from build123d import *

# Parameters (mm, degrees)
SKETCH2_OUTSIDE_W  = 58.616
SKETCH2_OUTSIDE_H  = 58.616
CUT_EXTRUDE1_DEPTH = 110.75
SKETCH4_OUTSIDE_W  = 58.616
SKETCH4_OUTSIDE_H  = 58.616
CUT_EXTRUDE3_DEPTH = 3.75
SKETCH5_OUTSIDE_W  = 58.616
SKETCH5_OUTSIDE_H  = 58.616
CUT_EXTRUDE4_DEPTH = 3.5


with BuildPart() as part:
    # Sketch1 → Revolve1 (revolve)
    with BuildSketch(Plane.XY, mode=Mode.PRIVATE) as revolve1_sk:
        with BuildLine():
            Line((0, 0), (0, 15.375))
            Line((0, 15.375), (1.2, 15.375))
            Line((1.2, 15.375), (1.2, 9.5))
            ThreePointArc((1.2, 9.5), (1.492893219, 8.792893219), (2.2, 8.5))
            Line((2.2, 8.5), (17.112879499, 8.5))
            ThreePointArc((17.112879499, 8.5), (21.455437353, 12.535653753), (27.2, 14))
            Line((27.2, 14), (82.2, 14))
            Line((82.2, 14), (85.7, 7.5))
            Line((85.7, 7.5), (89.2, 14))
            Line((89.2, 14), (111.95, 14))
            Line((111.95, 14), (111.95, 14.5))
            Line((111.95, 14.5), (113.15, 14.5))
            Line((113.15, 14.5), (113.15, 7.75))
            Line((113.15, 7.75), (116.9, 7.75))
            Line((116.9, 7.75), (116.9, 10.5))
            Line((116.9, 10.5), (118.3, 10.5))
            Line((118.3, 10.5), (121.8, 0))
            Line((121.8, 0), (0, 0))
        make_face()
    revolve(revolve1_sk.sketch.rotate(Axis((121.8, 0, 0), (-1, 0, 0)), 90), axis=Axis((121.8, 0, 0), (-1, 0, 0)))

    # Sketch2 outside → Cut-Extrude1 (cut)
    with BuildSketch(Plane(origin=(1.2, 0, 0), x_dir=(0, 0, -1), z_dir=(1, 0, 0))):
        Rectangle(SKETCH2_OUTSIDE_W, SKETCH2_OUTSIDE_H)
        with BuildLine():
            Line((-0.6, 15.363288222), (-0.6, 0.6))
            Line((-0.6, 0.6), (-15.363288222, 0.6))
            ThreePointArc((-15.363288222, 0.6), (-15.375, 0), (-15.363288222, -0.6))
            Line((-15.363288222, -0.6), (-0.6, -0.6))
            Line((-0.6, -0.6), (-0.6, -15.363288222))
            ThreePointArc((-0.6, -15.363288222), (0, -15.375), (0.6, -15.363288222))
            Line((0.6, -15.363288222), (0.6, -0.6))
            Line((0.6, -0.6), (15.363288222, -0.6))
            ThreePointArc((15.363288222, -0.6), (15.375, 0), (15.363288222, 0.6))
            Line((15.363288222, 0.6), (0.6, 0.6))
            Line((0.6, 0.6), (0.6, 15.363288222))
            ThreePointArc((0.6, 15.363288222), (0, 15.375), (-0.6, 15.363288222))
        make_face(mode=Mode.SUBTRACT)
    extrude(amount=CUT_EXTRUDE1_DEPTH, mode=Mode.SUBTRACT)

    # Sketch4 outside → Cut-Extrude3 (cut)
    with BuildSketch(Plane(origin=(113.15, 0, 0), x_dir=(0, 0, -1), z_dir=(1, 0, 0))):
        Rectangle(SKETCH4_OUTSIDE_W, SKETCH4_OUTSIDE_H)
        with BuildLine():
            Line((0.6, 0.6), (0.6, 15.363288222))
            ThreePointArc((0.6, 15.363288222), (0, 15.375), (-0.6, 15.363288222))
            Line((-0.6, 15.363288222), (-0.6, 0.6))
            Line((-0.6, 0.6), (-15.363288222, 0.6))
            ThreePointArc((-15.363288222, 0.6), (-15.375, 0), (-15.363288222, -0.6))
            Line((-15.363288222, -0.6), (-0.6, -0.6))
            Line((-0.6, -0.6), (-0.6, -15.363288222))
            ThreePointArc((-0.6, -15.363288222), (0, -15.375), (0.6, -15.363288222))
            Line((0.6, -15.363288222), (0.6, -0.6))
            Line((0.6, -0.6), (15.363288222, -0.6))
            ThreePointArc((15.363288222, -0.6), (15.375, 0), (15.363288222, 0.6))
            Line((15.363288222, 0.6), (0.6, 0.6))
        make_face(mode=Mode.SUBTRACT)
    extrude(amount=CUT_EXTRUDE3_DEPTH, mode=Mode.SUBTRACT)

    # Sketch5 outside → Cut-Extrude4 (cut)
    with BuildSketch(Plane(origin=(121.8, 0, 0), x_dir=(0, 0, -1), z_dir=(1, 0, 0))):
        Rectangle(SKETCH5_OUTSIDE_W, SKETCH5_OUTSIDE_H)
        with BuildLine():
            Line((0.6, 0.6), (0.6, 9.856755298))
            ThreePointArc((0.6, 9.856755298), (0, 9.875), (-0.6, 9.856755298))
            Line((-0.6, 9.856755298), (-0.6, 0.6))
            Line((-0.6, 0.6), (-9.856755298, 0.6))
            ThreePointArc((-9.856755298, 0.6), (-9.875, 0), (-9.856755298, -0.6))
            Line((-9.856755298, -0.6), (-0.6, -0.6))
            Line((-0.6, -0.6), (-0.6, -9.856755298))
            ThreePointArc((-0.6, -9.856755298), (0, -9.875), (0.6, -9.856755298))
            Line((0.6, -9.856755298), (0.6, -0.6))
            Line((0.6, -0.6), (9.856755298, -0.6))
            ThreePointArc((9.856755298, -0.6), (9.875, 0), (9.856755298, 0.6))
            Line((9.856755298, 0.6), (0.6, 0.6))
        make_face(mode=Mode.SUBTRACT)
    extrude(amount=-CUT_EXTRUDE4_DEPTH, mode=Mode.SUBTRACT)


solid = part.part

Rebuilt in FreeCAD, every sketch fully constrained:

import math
import FreeCAD as App
import Part
import Sketcher

doc = App.newDocument("Part")
params = doc.addObject("Spreadsheet::Sheet", "Params")
for row, (alias, value) in enumerate([
    ("sketch1_radius", "12 mm"),
    ("sketch1_radius2", "1 mm"),
    ("sketch1_width", "55 mm"),
    ("sketch1_width2", "121.8 mm"),
    ("sketch1_width3", "1.4 mm"),
    ("revolution_angle", "360 deg"),
    ("pocket1_length", "110.75 mm"),
    ("pocket2_length", "3.75 mm"),
    ("pocket3_length", "3.5 mm"),
], start=1):
    params.set(f"A{row}", alias)
    params.set(f"B{row}", "=" + value)
    params.setAlias(f"B{row}", alias)

body = doc.addObject("PartDesign::Body", "Body")

# Sketch on XY plane
sketch1 = body.newObject("Sketcher::SketchObject", "Sketch")
sketch1.AttachmentSupport = (doc.getObject("XY_Plane"), [""])
sketch1.MapMode = "FlatFace"
sketch1.addGeometry([
    Part.LineSegment(App.Vector(0, 15.4, 0), App.Vector(0, 0, 0)),  # 0
    Part.LineSegment(App.Vector(0, 0, 0), App.Vector(121.8, 0, 0)),  # 1
    Part.LineSegment(App.Vector(121.8, 0, 0), App.Vector(118.3, 10.5, 0)),  # 2
    Part.LineSegment(App.Vector(118.3, 10.5, 0), App.Vector(116.9, 10.5, 0)),  # 3
    Part.LineSegment(App.Vector(116.9, 10.5, 0), App.Vector(116.9, 7.8, 0)),  # 4
    Part.LineSegment(App.Vector(116.9, 7.8, 0), App.Vector(113.2, 7.8, 0)),  # 5
    Part.LineSegment(App.Vector(113.2, 7.8, 0), App.Vector(113.2, 14.5, 0)),  # 6
    Part.LineSegment(App.Vector(113.2, 14.5, 0), App.Vector(112, 14.5, 0)),  # 7
    Part.LineSegment(App.Vector(112, 14.5, 0), App.Vector(112, 14, 0)),  # 8
    Part.LineSegment(App.Vector(112, 14, 0), App.Vector(89.2, 14, 0)),  # 9
    Part.LineSegment(App.Vector(89.2, 14, 0), App.Vector(85.7, 7.5, 0)),  # 10
    Part.LineSegment(App.Vector(85.7, 7.5, 0), App.Vector(82.2, 14, 0)),  # 11
    Part.LineSegment(App.Vector(82.2, 14, 0), App.Vector(27.2, 14, 0)),  # 12
    Part.ArcOfCircle(Part.Circle(App.Vector(27.2, 2, 0), App.Vector(0, 0, 1), 12), math.radians(90), math.radians(147)),  # 13
    Part.LineSegment(App.Vector(17.1, 8.5, 0), App.Vector(2.2, 8.5, 0)),  # 14
    Part.ArcOfCircle(Part.Circle(App.Vector(2.2, 9.5, 0), App.Vector(0, 0, 1), 1), math.radians(-180), math.radians(-90)),  # 15
    Part.LineSegment(App.Vector(1.2, 9.5, 0), App.Vector(1.2, 15.4, 0)),  # 16
    Part.LineSegment(App.Vector(1.2, 15.4, 0), App.Vector(0, 15.4, 0)),  # 17
], False)
sketch1.addConstraint([
    Sketcher.Constraint("Coincident", 0, 2, 1, 1),
    Sketcher.Constraint("Coincident", 1, 2, 2, 1),
    Sketcher.Constraint("Coincident", 2, 2, 3, 1),
    Sketcher.Constraint("Coincident", 3, 2, 4, 1),
    Sketcher.Constraint("Coincident", 4, 2, 5, 1),
    Sketcher.Constraint("Coincident", 5, 2, 6, 1),
    Sketcher.Constraint("Coincident", 6, 2, 7, 1),
    Sketcher.Constraint("Coincident", 7, 2, 8, 1),
    Sketcher.Constraint("Coincident", 8, 2, 9, 1),
    Sketcher.Constraint("Coincident", 9, 2, 10, 1),
    Sketcher.Constraint("Coincident", 10, 2, 11, 1),
    Sketcher.Constraint("Coincident", 11, 2, 12, 1),
    Sketcher.Constraint("Tangent", 12, 2, 13, 1),
    Sketcher.Constraint("Coincident", 13, 2, 14, 1),
    Sketcher.Constraint("Tangent", 14, 2, 15, 2),
    Sketcher.Constraint("Tangent", 15, 1, 16, 1),
    Sketcher.Constraint("Coincident", 16, 2, 17, 1),
    Sketcher.Constraint("Coincident", 17, 2, 0, 1),
    Sketcher.Constraint("Vertical", 0),
    Sketcher.Constraint("Horizontal", 1),
    Sketcher.Constraint("Horizontal", 3),
    Sketcher.Constraint("Vertical", 4),
    Sketcher.Constraint("Horizontal", 5),
    Sketcher.Constraint("Vertical", 6),
    Sketcher.Constraint("Horizontal", 7),
    Sketcher.Constraint("Vertical", 8),
    Sketcher.Constraint("Horizontal", 9),
    Sketcher.Constraint("Horizontal", 12),
    Sketcher.Constraint("Horizontal", 14),
    Sketcher.Constraint("Vertical", 16),
    Sketcher.Constraint("Horizontal", 17),
    Sketcher.Constraint("Coincident", 0, 2, -1, 1),
    Sketcher.Constraint("Horizontal", 9, 2, 11, 2),
    Sketcher.Constraint("Equal", 7, 17),
    Sketcher.Constraint("Equal", 10, 11),
    Sketcher.Constraint("Radius", 13, 12.0),
    Sketcher.Constraint("Radius", 15, 1.0),
    Sketcher.Constraint("DistanceX", 12, 2, 12, 1, 55.0),
    Sketcher.Constraint("DistanceX", 1, 1, 1, 2, 121.8),
    Sketcher.Constraint("DistanceX", 3, 2, 3, 1, 1.4),
    Sketcher.Constraint("DistanceX", 7, 2, 7, 1, 1.2),
    Sketcher.Constraint("DistanceY", 8, 2, 8, 1, 0.5),
    Sketcher.Constraint("DistanceY", -1, 1, 13, 3, 2.0),
    Sketcher.Constraint("DistanceX", 15, 3, 13, 3, 25.0),
    Sketcher.Constraint("DistanceY", 15, 3, 2, 2, 1.0),
    Sketcher.Constraint("DistanceY", 3, 2, 6, 2, 4.0),
    Sketcher.Constraint("DistanceY", 10, 2, 7, 2, 7.0),
    Sketcher.Constraint("DistanceX", 11, 2, 9, 2, 7.0),
    Sketcher.Constraint("DistanceX", 5, 2, 5, 1, 3.75),
    Sketcher.Constraint("DistanceX", 9, 2, 9, 1, 22.75),
    Sketcher.Constraint("DistanceY", 4, 2, 4, 1, 2.75),
    Sketcher.Constraint("DistanceY", 0, 2, 0, 1, 15.375),
])
sketch1.setExpression("Constraints[35]", "Params.sketch1_radius")
sketch1.setExpression("Constraints[36]", "Params.sketch1_radius2")
sketch1.setExpression("Constraints[37]", "Params.sketch1_width")
sketch1.setExpression("Constraints[38]", "Params.sketch1_width2")
sketch1.setExpression("Constraints[39]", "Params.sketch1_width3")
revolution = body.newObject("PartDesign::Revolution", "Revolution")
revolution.Profile = sketch1
revolution.ReferenceAxis = (sketch1, ["H_Axis"])
revolution.setExpression("Angle", "Params.revolution_angle")

# Sketch on YZ plane
sketch2 = body.newObject("Sketcher::SketchObject", "Sketch001")
sketch2.AttachmentSupport = (doc.getObject("YZ_Plane"), [""])
sketch2.MapMode = "FlatFace"
sketch2.AttachmentOffset = App.Placement(App.Vector(0, 0, 1.2), App.Rotation())
sketch2.addGeometry([
    Part.LineSegment(App.Vector(29.3, 29.3, 0), App.Vector(-29.3, 29.3, 0)),  # 0
    Part.LineSegment(App.Vector(-29.3, 29.3, 0), App.Vector(-29.3, -29.3, 0)),  # 1
    Part.LineSegment(App.Vector(-29.3, -29.3, 0), App.Vector(29.3, -29.3, 0)),  # 2
    Part.LineSegment(App.Vector(29.3, -29.3, 0), App.Vector(29.3, 29.3, 0)),  # 3
    Part.LineSegment(App.Vector(0.6, 0.6, 0), App.Vector(15.4, 0.6, 0)),  # 4
    Part.ArcOfCircle(Part.Circle(App.Vector(0, 0, 0), App.Vector(0, 0, 1), 15.4), math.radians(-2.24), math.radians(2.24)),  # 5
    Part.LineSegment(App.Vector(15.4, -0.6, 0), App.Vector(0.6, -0.6, 0)),  # 6
    Part.LineSegment(App.Vector(0.6, -0.6, 0), App.Vector(0.6, -15.4, 0)),  # 7
    Part.ArcOfCircle(Part.Circle(App.Vector(0, 0, 0), App.Vector(0, 0, 1), 15.4), math.radians(-92.24), math.radians(-87.76)),  # 8
    Part.LineSegment(App.Vector(-0.6, -15.4, 0), App.Vector(-0.6, -0.6, 0)),  # 9
    Part.LineSegment(App.Vector(-0.6, -0.6, 0), App.Vector(-15.4, -0.6, 0)),  # 10
    Part.ArcOfCircle(Part.Circle(App.Vector(0, 0, 0), App.Vector(0, 0, 1), 15.4), math.radians(177.76), math.radians(182.24)),  # 11
    Part.LineSegment(App.Vector(-15.4, 0.6, 0), App.Vector(-0.6, 0.6, 0)),  # 12
    Part.LineSegment(App.Vector(-0.6, 0.6, 0), App.Vector(-0.6, 15.4, 0)),  # 13
    Part.ArcOfCircle(Part.Circle(App.Vector(0, 0, 0), App.Vector(0, 0, 1), 15.4), math.radians(87.76), math.radians(92.24)),  # 14
    Part.LineSegment(App.Vector(0.6, 15.4, 0), App.Vector(0.6, 0.6, 0)),  # 15
], False)
sketch2.addConstraint([
    Sketcher.Constraint("Coincident", 0, 2, 1, 1),
    Sketcher.Constraint("Coincident", 1, 2, 2, 1),
    Sketcher.Constraint("Coincident", 2, 2, 3, 1),
    Sketcher.Constraint("Coincident", 3, 2, 0, 1),
    Sketcher.Constraint("Coincident", 4, 2, 5, 2),
    Sketcher.Constraint("Coincident", 5, 1, 6, 1),
    Sketcher.Constraint("Coincident", 6, 2, 7, 1),
    Sketcher.Constraint("Coincident", 7, 2, 8, 2),
    Sketcher.Constraint("Coincident", 8, 1, 9, 1),
    Sketcher.Constraint("Coincident", 9, 2, 10, 1),
    Sketcher.Constraint("Coincident", 10, 2, 11, 2),
    Sketcher.Constraint("Coincident", 11, 1, 12, 1),
    Sketcher.Constraint("Coincident", 12, 2, 13, 1),
    Sketcher.Constraint("Coincident", 13, 2, 14, 2),
    Sketcher.Constraint("Coincident", 14, 1, 15, 1),
    Sketcher.Constraint("Coincident", 15, 2, 4, 1),
    Sketcher.Constraint("Horizontal", 0),
    Sketcher.Constraint("Vertical", 1),
    Sketcher.Constraint("Horizontal", 2),
    Sketcher.Constraint("Vertical", 3),
    Sketcher.Constraint("Horizontal", 4),
    Sketcher.Constraint("Horizontal", 6),
    Sketcher.Constraint("Vertical", 7),
    Sketcher.Constraint("Vertical", 9),
    Sketcher.Constraint("Horizontal", 10),
    Sketcher.Constraint("Horizontal", 12),
    Sketcher.Constraint("Vertical", 13),
    Sketcher.Constraint("Vertical", 15),
    Sketcher.Constraint("Coincident", 5, 3, -1, 1),
    Sketcher.Constraint("Coincident", 8, 3, -1, 1),
    Sketcher.Constraint("Coincident", 11, 3, -1, 1),
    Sketcher.Constraint("Coincident", 14, 3, -1, 1),
    Sketcher.Constraint("Equal", 5, 8),
    Sketcher.Constraint("Equal", 8, 11),
    Sketcher.Constraint("Equal", 11, 14),
    Sketcher.Constraint("Symmetric", 0, 2, 2, 2, -1, 1),
    Sketcher.Constraint("Symmetric", 6, 2, 12, 2, -1, 1),
    Sketcher.Constraint("Symmetric", 9, 2, 15, 2, -1, 1),
    Sketcher.Constraint("Symmetric", 6, 2, 9, 2, -2),
    Sketcher.Constraint("Equal", 2, 1),
    Sketcher.Constraint("Equal", 12, 7),
    Sketcher.Constraint("Radius", 5, 15.375),
    Sketcher.Constraint("DistanceY", -1, 1, 4, 2, 0.6),
    Sketcher.Constraint("DistanceX", 0, 2, 0, 1, 58.616),
])
pocket1 = body.newObject("PartDesign::Pocket", "Pocket")
pocket1.Profile = sketch2
pocket1.setExpression("Length", "Params.pocket1_length")
pocket1.Reversed = True

# Sketch on YZ plane
sketch3 = body.newObject("Sketcher::SketchObject", "Sketch002")
sketch3.AttachmentSupport = (doc.getObject("YZ_Plane"), [""])
sketch3.MapMode = "FlatFace"
sketch3.AttachmentOffset = App.Placement(App.Vector(0, 0, 113.15), App.Rotation())
sketch3.addGeometry([
    Part.LineSegment(App.Vector(29.3, 29.3, 0), App.Vector(-29.3, 29.3, 0)),  # 0
    Part.LineSegment(App.Vector(-29.3, 29.3, 0), App.Vector(-29.3, -29.3, 0)),  # 1
    Part.LineSegment(App.Vector(-29.3, -29.3, 0), App.Vector(29.3, -29.3, 0)),  # 2
    Part.LineSegment(App.Vector(29.3, -29.3, 0), App.Vector(29.3, 29.3, 0)),  # 3
    Part.LineSegment(App.Vector(15.4, -0.6, 0), App.Vector(0.6, -0.6, 0)),  # 4
    Part.LineSegment(App.Vector(0.6, -0.6, 0), App.Vector(0.6, -15.4, 0)),  # 5
    Part.ArcOfCircle(Part.Circle(App.Vector(0, 0, 0), App.Vector(0, 0, 1), 15.4), math.radians(-92.24), math.radians(-87.76)),  # 6
    Part.LineSegment(App.Vector(-0.6, -15.4, 0), App.Vector(-0.6, -0.6, 0)),  # 7
    Part.LineSegment(App.Vector(-0.6, -0.6, 0), App.Vector(-15.4, -0.6, 0)),  # 8
    Part.ArcOfCircle(Part.Circle(App.Vector(0, 0, 0), App.Vector(0, 0, 1), 15.4), math.radians(177.76), math.radians(182.24)),  # 9
    Part.LineSegment(App.Vector(-15.4, 0.6, 0), App.Vector(-0.6, 0.6, 0)),  # 10
    Part.LineSegment(App.Vector(-0.6, 0.6, 0), App.Vector(-0.6, 15.4, 0)),  # 11
    Part.ArcOfCircle(Part.Circle(App.Vector(0, 0, 0), App.Vector(0, 0, 1), 15.4), math.radians(87.76), math.radians(92.24)),  # 12
    Part.LineSegment(App.Vector(0.6, 15.4, 0), App.Vector(0.6, 0.6, 0)),  # 13
    Part.LineSegment(App.Vector(0.6, 0.6, 0), App.Vector(15.4, 0.6, 0)),  # 14
    Part.ArcOfCircle(Part.Circle(App.Vector(0, 0, 0), App.Vector(0, 0, 1), 15.4), math.radians(-2.24), math.radians(2.24)),  # 15
], False)
sketch3.addConstraint([
    Sketcher.Constraint("Coincident", 0, 2, 1, 1),
    Sketcher.Constraint("Coincident", 1, 2, 2, 1),
    Sketcher.Constraint("Coincident", 2, 2, 3, 1),
    Sketcher.Constraint("Coincident", 3, 2, 0, 1),
    Sketcher.Constraint("Coincident", 4, 2, 5, 1),
    Sketcher.Constraint("Coincident", 5, 2, 6, 2),
    Sketcher.Constraint("Coincident", 6, 1, 7, 1),
    Sketcher.Constraint("Coincident", 7, 2, 8, 1),
    Sketcher.Constraint("Coincident", 8, 2, 9, 2),
    Sketcher.Constraint("Coincident", 9, 1, 10, 1),
    Sketcher.Constraint("Coincident", 10, 2, 11, 1),
    Sketcher.Constraint("Coincident", 11, 2, 12, 2),
    Sketcher.Constraint("Coincident", 12, 1, 13, 1),
    Sketcher.Constraint("Coincident", 13, 2, 14, 1),
    Sketcher.Constraint("Coincident", 14, 2, 15, 2),
    Sketcher.Constraint("Coincident", 15, 1, 4, 1),
    Sketcher.Constraint("Horizontal", 0),
    Sketcher.Constraint("Vertical", 1),
    Sketcher.Constraint("Horizontal", 2),
    Sketcher.Constraint("Vertical", 3),
    Sketcher.Constraint("Horizontal", 4),
    Sketcher.Constraint("Vertical", 5),
    Sketcher.Constraint("Vertical", 7),
    Sketcher.Constraint("Horizontal", 8),
    Sketcher.Constraint("Horizontal", 10),
    Sketcher.Constraint("Vertical", 11),
    Sketcher.Constraint("Vertical", 13),
    Sketcher.Constraint("Horizontal", 14),
    Sketcher.Constraint("Coincident", 6, 3, -1, 1),
    Sketcher.Constraint("Coincident", 9, 3, -1, 1),
    Sketcher.Constraint("Coincident", 12, 3, -1, 1),
    Sketcher.Constraint("Coincident", 15, 3, -1, 1),
    Sketcher.Constraint("Equal", 6, 9),
    Sketcher.Constraint("Equal", 9, 12),
    Sketcher.Constraint("Equal", 12, 15),
    Sketcher.Constraint("Symmetric", 0, 2, 2, 2, -1, 1),
    Sketcher.Constraint("Symmetric", 4, 2, 10, 2, -1, 1),
    Sketcher.Constraint("Symmetric", 7, 2, 13, 2, -1, 1),
    Sketcher.Constraint("Symmetric", 4, 2, 7, 2, -2),
    Sketcher.Constraint("Equal", 2, 1),
    Sketcher.Constraint("Equal", 14, 5),
    Sketcher.Constraint("Radius", 6, 15.375),
    Sketcher.Constraint("DistanceX", -1, 1, 4, 2, 0.6),
    Sketcher.Constraint("DistanceX", 0, 2, 0, 1, 58.616),
])
pocket2 = body.newObject("PartDesign::Pocket", "Pocket001")
pocket2.Profile = sketch3
pocket2.setExpression("Length", "Params.pocket2_length")
pocket2.Reversed = True

# Sketch on YZ plane
sketch4 = body.newObject("Sketcher::SketchObject", "Sketch003")
sketch4.AttachmentSupport = (doc.getObject("YZ_Plane"), [""])
sketch4.MapMode = "FlatFace"
sketch4.AttachmentOffset = App.Placement(App.Vector(0, 0, 121.8), App.Rotation())
sketch4.addGeometry([
    Part.LineSegment(App.Vector(29.3, 29.3, 0), App.Vector(-29.3, 29.3, 0)),  # 0
    Part.LineSegment(App.Vector(-29.3, 29.3, 0), App.Vector(-29.3, -29.3, 0)),  # 1
    Part.LineSegment(App.Vector(-29.3, -29.3, 0), App.Vector(29.3, -29.3, 0)),  # 2
    Part.LineSegment(App.Vector(29.3, -29.3, 0), App.Vector(29.3, 29.3, 0)),  # 3
    Part.LineSegment(App.Vector(9.9, -0.6, 0), App.Vector(0.6, -0.6, 0)),  # 4
    Part.LineSegment(App.Vector(0.6, -0.6, 0), App.Vector(0.6, -9.9, 0)),  # 5
    Part.ArcOfCircle(Part.Circle(App.Vector(0, 0, 0), App.Vector(0, 0, 1), 9.9), math.radians(-93.48), math.radians(-86.52)),  # 6
    Part.LineSegment(App.Vector(-0.6, -9.9, 0), App.Vector(-0.6, -0.6, 0)),  # 7
    Part.LineSegment(App.Vector(-0.6, -0.6, 0), App.Vector(-9.9, -0.6, 0)),  # 8
    Part.ArcOfCircle(Part.Circle(App.Vector(0, 0, 0), App.Vector(0, 0, 1), 9.9), math.radians(176.52), math.radians(183.48)),  # 9
    Part.LineSegment(App.Vector(-9.9, 0.6, 0), App.Vector(-0.6, 0.6, 0)),  # 10
    Part.LineSegment(App.Vector(-0.6, 0.6, 0), App.Vector(-0.6, 9.9, 0)),  # 11
    Part.ArcOfCircle(Part.Circle(App.Vector(0, 0, 0), App.Vector(0, 0, 1), 9.9), math.radians(86.52), math.radians(93.48)),  # 12
    Part.LineSegment(App.Vector(0.6, 9.9, 0), App.Vector(0.6, 0.6, 0)),  # 13
    Part.LineSegment(App.Vector(0.6, 0.6, 0), App.Vector(9.9, 0.6, 0)),  # 14
    Part.ArcOfCircle(Part.Circle(App.Vector(0, 0, 0), App.Vector(0, 0, 1), 9.9), math.radians(-3.48), math.radians(3.48)),  # 15
], False)
sketch4.addConstraint([
    Sketcher.Constraint("Coincident", 0, 2, 1, 1),
    Sketcher.Constraint("Coincident", 1, 2, 2, 1),
    Sketcher.Constraint("Coincident", 2, 2, 3, 1),
    Sketcher.Constraint("Coincident", 3, 2, 0, 1),
    Sketcher.Constraint("Coincident", 4, 2, 5, 1),
    Sketcher.Constraint("Coincident", 5, 2, 6, 2),
    Sketcher.Constraint("Coincident", 6, 1, 7, 1),
    Sketcher.Constraint("Coincident", 7, 2, 8, 1),
    Sketcher.Constraint("Coincident", 8, 2, 9, 2),
    Sketcher.Constraint("Coincident", 9, 1, 10, 1),
    Sketcher.Constraint("Coincident", 10, 2, 11, 1),
    Sketcher.Constraint("Coincident", 11, 2, 12, 2),
    Sketcher.Constraint("Coincident", 12, 1, 13, 1),
    Sketcher.Constraint("Coincident", 13, 2, 14, 1),
    Sketcher.Constraint("Coincident", 14, 2, 15, 2),
    Sketcher.Constraint("Coincident", 15, 1, 4, 1),
    Sketcher.Constraint("Horizontal", 0),
    Sketcher.Constraint("Vertical", 1),
    Sketcher.Constraint("Horizontal", 2),
    Sketcher.Constraint("Vertical", 3),
    Sketcher.Constraint("Horizontal", 4),
    Sketcher.Constraint("Vertical", 5),
    Sketcher.Constraint("Vertical", 7),
    Sketcher.Constraint("Horizontal", 8),
    Sketcher.Constraint("Horizontal", 10),
    Sketcher.Constraint("Vertical", 11),
    Sketcher.Constraint("Vertical", 13),
    Sketcher.Constraint("Horizontal", 14),
    Sketcher.Constraint("Coincident", 6, 3, -1, 1),
    Sketcher.Constraint("Coincident", 9, 3, -1, 1),
    Sketcher.Constraint("Coincident", 12, 3, -1, 1),
    Sketcher.Constraint("Coincident", 15, 3, -1, 1),
    Sketcher.Constraint("Equal", 6, 9),
    Sketcher.Constraint("Equal", 9, 12),
    Sketcher.Constraint("Equal", 12, 15),
    Sketcher.Constraint("Symmetric", 0, 2, 2, 2, -1, 1),
    Sketcher.Constraint("Symmetric", 4, 2, 10, 2, -1, 1),
    Sketcher.Constraint("Symmetric", 7, 2, 13, 2, -1, 1),
    Sketcher.Constraint("Symmetric", 4, 2, 7, 2, -2),
    Sketcher.Constraint("Equal", 2, 1),
    Sketcher.Constraint("Equal", 14, 5),
    Sketcher.Constraint("Radius", 6, 9.875),
    Sketcher.Constraint("DistanceX", -1, 1, 4, 2, 0.6),
    Sketcher.Constraint("DistanceX", 0, 2, 0, 1, 58.616),
])
pocket3 = body.newObject("PartDesign::Pocket", "Pocket002")
pocket3.Profile = sketch4
pocket3.setExpression("Length", "Params.pocket3_length")

doc.recompute()
